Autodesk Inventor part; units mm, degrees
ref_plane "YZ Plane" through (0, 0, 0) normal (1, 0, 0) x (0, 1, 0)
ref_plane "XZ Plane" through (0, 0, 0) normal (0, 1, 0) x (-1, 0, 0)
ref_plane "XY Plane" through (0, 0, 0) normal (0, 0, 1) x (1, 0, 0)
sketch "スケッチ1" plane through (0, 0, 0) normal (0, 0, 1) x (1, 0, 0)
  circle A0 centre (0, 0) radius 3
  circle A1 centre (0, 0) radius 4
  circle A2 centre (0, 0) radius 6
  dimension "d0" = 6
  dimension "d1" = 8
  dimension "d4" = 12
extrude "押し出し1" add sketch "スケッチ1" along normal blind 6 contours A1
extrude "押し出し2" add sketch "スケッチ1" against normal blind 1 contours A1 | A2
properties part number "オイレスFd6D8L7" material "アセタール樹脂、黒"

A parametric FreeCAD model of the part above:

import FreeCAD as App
import Part
import Sketcher

doc = App.newDocument("Part")
body = doc.addObject("PartDesign::Body", "Body")

# Sketch on XY plane
sketch1 = body.newObject("Sketcher::SketchObject", "Sketch")
sketch1.AttachmentSupport = (doc.getObject("XY_Plane"), [""])
sketch1.MapMode = "FlatFace"
sketch1.addGeometry(Part.Circle(App.Vector(0, 0, 0), App.Vector(0, 0, 1), 4), False)
sketch1.addGeometry(Part.Circle(App.Vector(0, 0, 0), App.Vector(0, 0, 1), 3), False)
sketch1.addConstraint(Sketcher.Constraint("Coincident", 0, 3, -1, 1))
sketch1.addConstraint(Sketcher.Constraint("Coincident", 1, 3, -1, 1))
sketch1.addConstraint(Sketcher.Constraint("Diameter", 0, 8.0))
sketch1.addConstraint(Sketcher.Constraint("Diameter", 1, 6.0))
pad1 = body.newObject("PartDesign::Pad", "Pad")
pad1.Profile = sketch1
pad1.Length = 6

# Sketch on XY plane
sketch2 = body.newObject("Sketcher::SketchObject", "Sketch001")
sketch2.AttachmentSupport = (doc.getObject("XY_Plane"), [""])
sketch2.MapMode = "FlatFace"
sketch2.addGeometry(Part.Circle(App.Vector(0, 0, 0), App.Vector(0, 0, 1), 6), False)
sketch2.addGeometry(Part.Circle(App.Vector(0, 0, 0), App.Vector(0, 0, 1), 3), False)
sketch2.addConstraint(Sketcher.Constraint("Coincident", 0, 3, -1, 1))
sketch2.addConstraint(Sketcher.Constraint("Coincident", 1, 3, -1, 1))
sketch2.addConstraint(Sketcher.Constraint("Diameter", 0, 12.0))
sketch2.addConstraint(Sketcher.Constraint("Diameter", 1, 6.0))
pad2 = body.newObject("PartDesign::Pad", "Pad001")
pad2.Profile = sketch2
pad2.Length = 1
pad2.Reversed = True

doc.recompute()
